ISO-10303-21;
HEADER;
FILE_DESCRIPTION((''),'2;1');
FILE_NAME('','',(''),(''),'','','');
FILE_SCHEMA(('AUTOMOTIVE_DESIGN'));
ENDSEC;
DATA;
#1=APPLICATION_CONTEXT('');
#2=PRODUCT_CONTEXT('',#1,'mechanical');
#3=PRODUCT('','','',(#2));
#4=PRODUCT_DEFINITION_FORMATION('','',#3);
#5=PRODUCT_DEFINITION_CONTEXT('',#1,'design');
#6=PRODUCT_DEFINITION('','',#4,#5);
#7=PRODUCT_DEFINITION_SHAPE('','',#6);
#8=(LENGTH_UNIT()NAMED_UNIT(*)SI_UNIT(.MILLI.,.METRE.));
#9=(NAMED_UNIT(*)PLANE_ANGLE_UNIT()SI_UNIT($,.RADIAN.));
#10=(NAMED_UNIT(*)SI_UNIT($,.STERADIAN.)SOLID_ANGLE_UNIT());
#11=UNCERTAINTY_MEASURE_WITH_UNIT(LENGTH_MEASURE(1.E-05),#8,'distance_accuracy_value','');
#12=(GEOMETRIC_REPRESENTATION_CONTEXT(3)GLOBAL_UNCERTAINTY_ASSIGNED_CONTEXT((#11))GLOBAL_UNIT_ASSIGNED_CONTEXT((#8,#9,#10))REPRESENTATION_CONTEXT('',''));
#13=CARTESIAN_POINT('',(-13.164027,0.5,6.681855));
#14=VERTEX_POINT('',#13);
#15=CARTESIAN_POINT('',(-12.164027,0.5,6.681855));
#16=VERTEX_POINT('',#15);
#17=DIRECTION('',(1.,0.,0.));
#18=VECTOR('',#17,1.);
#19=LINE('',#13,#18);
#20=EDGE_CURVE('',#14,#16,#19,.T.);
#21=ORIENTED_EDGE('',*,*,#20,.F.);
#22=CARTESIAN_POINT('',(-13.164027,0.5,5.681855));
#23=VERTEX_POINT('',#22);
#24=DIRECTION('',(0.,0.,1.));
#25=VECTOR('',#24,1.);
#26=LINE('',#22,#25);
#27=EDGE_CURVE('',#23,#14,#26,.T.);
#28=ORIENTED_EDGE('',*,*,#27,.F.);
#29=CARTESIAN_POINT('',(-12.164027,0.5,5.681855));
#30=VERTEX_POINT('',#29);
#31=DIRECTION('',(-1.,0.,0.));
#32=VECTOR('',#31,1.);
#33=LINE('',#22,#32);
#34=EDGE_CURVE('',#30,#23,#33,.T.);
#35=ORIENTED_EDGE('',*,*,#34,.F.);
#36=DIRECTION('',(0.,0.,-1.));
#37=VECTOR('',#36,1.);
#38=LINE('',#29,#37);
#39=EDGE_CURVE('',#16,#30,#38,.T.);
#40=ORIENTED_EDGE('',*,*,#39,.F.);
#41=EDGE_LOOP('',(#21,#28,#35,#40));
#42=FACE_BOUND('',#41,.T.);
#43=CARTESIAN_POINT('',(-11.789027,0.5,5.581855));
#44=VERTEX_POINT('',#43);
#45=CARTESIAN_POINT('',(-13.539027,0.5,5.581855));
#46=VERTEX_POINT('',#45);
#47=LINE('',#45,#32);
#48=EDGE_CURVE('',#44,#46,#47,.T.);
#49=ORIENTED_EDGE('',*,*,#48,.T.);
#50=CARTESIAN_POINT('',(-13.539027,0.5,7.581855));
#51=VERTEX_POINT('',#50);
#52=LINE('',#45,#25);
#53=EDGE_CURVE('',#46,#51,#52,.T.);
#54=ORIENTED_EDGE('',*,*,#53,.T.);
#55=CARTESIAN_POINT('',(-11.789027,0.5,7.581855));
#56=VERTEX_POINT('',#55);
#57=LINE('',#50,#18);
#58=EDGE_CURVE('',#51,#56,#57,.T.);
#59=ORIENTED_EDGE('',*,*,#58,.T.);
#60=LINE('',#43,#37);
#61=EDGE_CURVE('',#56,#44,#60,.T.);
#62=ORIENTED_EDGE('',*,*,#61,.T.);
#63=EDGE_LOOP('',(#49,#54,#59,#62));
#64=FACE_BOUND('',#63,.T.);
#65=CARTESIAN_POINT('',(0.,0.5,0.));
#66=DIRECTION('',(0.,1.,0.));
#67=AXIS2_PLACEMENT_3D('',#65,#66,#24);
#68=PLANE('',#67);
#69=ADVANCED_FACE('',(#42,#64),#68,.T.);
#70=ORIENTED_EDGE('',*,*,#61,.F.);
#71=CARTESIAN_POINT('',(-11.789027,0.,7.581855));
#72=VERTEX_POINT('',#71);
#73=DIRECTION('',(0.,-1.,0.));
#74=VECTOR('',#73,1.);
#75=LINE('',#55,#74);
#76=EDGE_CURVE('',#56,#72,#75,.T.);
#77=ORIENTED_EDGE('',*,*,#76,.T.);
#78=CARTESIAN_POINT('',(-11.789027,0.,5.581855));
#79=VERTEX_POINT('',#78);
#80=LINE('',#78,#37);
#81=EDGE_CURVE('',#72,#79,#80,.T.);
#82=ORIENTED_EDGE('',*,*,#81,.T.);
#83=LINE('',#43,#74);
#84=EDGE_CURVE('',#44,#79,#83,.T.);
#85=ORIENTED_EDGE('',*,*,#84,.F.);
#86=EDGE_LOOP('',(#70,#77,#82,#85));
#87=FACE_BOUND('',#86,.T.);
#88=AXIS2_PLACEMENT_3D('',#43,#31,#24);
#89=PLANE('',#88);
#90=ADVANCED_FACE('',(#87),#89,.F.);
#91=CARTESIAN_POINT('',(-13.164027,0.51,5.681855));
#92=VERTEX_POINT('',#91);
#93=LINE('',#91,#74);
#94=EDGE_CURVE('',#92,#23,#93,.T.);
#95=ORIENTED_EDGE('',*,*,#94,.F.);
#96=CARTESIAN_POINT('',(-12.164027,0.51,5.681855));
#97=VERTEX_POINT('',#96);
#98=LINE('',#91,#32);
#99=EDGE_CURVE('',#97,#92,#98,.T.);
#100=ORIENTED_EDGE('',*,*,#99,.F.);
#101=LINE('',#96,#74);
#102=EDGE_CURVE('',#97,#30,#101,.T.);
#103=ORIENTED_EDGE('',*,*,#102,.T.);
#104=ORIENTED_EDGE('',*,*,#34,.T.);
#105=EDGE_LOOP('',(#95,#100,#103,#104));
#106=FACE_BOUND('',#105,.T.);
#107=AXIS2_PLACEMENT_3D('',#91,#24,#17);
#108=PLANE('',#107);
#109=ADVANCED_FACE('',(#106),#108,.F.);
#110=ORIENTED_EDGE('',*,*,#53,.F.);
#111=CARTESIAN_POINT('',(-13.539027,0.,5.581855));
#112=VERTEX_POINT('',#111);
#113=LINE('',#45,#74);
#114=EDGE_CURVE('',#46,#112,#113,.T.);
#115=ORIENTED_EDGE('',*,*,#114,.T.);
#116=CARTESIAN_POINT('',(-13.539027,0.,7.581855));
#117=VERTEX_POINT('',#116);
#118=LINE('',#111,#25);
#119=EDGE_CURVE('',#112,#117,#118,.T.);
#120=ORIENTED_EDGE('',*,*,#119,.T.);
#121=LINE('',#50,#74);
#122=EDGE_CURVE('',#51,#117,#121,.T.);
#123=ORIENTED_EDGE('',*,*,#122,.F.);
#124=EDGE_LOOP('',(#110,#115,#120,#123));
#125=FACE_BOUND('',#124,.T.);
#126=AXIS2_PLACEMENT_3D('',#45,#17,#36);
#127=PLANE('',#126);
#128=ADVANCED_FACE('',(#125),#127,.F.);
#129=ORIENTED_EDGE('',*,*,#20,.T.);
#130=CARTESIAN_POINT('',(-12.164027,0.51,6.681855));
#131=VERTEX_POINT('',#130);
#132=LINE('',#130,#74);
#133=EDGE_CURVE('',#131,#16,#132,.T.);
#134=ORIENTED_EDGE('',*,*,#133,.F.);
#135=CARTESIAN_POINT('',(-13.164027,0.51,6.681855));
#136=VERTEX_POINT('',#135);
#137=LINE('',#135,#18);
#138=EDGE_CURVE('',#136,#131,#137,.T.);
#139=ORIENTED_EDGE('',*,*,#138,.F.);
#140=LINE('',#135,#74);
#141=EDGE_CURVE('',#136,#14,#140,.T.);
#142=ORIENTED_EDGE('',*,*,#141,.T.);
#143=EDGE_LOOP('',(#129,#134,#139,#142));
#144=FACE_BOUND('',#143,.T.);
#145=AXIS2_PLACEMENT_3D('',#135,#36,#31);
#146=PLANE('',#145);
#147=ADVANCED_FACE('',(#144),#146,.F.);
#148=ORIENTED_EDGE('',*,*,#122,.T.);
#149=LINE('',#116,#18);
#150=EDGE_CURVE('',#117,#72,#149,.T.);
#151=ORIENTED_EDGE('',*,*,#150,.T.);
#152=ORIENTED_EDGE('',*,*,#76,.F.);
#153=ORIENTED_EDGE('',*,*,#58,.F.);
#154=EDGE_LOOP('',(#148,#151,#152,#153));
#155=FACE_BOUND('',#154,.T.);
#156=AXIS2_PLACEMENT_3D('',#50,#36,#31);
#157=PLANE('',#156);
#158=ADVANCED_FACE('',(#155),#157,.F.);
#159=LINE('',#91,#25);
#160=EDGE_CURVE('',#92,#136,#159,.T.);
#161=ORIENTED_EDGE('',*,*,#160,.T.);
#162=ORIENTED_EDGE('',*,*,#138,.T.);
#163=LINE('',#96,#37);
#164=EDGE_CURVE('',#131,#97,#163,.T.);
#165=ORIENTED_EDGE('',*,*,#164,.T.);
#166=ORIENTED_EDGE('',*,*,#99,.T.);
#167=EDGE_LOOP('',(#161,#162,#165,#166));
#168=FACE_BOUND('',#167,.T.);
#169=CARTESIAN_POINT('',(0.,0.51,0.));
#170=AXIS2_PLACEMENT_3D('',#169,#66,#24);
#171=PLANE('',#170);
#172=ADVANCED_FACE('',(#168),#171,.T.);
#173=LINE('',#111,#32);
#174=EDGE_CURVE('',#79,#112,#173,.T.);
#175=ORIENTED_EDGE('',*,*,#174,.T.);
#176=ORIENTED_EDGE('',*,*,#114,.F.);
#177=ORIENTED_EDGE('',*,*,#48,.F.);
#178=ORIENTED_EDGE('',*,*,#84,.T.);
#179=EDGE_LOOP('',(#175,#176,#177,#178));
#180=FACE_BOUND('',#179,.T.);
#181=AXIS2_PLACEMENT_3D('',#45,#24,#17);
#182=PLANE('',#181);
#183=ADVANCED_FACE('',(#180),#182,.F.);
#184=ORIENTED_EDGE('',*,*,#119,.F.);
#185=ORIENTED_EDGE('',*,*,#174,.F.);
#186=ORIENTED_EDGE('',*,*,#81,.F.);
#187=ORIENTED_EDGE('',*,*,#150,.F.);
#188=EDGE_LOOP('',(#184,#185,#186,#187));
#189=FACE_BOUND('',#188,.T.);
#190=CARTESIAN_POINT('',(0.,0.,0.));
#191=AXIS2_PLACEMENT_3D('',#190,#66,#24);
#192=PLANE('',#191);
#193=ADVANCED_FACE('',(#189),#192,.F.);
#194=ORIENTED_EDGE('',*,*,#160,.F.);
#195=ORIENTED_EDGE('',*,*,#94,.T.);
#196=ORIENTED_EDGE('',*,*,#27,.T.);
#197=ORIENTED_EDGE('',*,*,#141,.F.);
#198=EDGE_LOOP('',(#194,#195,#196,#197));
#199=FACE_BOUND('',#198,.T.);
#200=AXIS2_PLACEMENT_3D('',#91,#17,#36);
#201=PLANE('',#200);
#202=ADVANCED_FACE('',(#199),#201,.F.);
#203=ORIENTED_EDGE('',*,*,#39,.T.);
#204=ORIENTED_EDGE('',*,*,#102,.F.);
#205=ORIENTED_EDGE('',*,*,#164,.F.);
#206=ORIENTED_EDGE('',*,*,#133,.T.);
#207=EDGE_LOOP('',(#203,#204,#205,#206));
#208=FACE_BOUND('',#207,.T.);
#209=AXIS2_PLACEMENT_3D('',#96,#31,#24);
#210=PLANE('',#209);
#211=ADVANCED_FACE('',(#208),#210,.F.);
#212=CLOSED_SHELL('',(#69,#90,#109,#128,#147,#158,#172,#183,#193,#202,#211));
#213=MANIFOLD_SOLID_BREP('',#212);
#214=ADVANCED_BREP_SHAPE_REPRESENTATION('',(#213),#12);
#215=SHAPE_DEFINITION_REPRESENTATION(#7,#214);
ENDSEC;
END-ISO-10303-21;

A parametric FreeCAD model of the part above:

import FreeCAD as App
import Part
import Sketcher

V = App.Vector

doc = App.newDocument("Part")
body = doc.addObject("PartDesign::Body", "Body")

# Sketch on XZ plane
sketch1 = body.newObject("Sketcher::SketchObject", "Sketch")
sketch1.AttachmentSupport = (doc.getObject("XZ_Plane"), [""])
sketch1.MapMode = "FlatFace"
sketch1.addGeometry([
    Part.LineSegment(V(-13.5, 5.6, 0), V(-13.5, 7.6, 0)),
    Part.LineSegment(V(-13.5, 7.6, 0), V(-11.8, 7.6, 0)),
    Part.LineSegment(V(-11.8, 7.6, 0), V(-11.8, 5.6, 0)),
    Part.LineSegment(V(-11.8, 5.6, 0), V(-13.5, 5.6, 0)),
], False)
sketch1.addConstraint([
    Sketcher.Constraint("Coincident", 0, 2, 1, 1),
    Sketcher.Constraint("Coincident", 1, 2, 2, 1),
    Sketcher.Constraint("Coincident", 2, 2, 3, 1),
    Sketcher.Constraint("Coincident", 3, 2, 0, 1),
    Sketcher.Constraint("Vertical", 0),
    Sketcher.Constraint("Horizontal", 1),
    Sketcher.Constraint("Vertical", 2),
    Sketcher.Constraint("Horizontal", 3),
    Sketcher.Constraint("DistanceY", 0, 1, 0, 2, 2.0),
    Sketcher.Constraint("DistanceX", 1, 1, 1, 2, 1.75),
    Sketcher.Constraint("DistanceX", 0, 2, -1, 1, 13.539027),
    Sketcher.Constraint("DistanceY", -1, 1, 0, 2, 7.581855),
])
pad1 = body.newObject("PartDesign::Pad", "Pad")
pad1.Profile = sketch1
pad1.Length = 0.5
pad1.Reversed = True

# Sketch on XZ plane
sketch2 = body.newObject("Sketcher::SketchObject", "Sketch001")
sketch2.AttachmentSupport = (doc.getObject("XZ_Plane"), [""])
sketch2.MapMode = "FlatFace"
sketch2.AttachmentOffset = App.Placement(V(0, 0, -0.5), App.Rotation())
sketch2.addGeometry([
    Part.LineSegment(V(-13.2, 5.7, 0), V(-13.2, 6.7, 0)),
    Part.LineSegment(V(-13.2, 6.7, 0), V(-12.2, 6.7, 0)),
    Part.LineSegment(V(-12.2, 6.7, 0), V(-12.2, 5.7, 0)),
    Part.LineSegment(V(-12.2, 5.7, 0), V(-13.2, 5.7, 0)),
], False)
sketch2.addConstraint([
    Sketcher.Constraint("Coincident", 0, 2, 1, 1),
    Sketcher.Constraint("Coincident", 1, 2, 2, 1),
    Sketcher.Constraint("Coincident", 2, 2, 3, 1),
    Sketcher.Constraint("Coincident", 3, 2, 0, 1),
    Sketcher.Constraint("Vertical", 0),
    Sketcher.Constraint("Horizontal", 1),
    Sketcher.Constraint("Vertical", 2),
    Sketcher.Constraint("Horizontal", 3),
    Sketcher.Constraint("Equal", 3, 0),
    Sketcher.Constraint("DistanceX", 1, 1, 1, 2, 1.0),
    Sketcher.Constraint("DistanceX", 0, 2, -1, 1, 13.164027),
    Sketcher.Constraint("DistanceY", -1, 1, 0, 2, 6.681855),
])
pad2 = body.newObject("PartDesign::Pad", "Pad001")
pad2.Profile = sketch2
pad2.Length = 0.01
pad2.Reversed = True

doc.recompute()
